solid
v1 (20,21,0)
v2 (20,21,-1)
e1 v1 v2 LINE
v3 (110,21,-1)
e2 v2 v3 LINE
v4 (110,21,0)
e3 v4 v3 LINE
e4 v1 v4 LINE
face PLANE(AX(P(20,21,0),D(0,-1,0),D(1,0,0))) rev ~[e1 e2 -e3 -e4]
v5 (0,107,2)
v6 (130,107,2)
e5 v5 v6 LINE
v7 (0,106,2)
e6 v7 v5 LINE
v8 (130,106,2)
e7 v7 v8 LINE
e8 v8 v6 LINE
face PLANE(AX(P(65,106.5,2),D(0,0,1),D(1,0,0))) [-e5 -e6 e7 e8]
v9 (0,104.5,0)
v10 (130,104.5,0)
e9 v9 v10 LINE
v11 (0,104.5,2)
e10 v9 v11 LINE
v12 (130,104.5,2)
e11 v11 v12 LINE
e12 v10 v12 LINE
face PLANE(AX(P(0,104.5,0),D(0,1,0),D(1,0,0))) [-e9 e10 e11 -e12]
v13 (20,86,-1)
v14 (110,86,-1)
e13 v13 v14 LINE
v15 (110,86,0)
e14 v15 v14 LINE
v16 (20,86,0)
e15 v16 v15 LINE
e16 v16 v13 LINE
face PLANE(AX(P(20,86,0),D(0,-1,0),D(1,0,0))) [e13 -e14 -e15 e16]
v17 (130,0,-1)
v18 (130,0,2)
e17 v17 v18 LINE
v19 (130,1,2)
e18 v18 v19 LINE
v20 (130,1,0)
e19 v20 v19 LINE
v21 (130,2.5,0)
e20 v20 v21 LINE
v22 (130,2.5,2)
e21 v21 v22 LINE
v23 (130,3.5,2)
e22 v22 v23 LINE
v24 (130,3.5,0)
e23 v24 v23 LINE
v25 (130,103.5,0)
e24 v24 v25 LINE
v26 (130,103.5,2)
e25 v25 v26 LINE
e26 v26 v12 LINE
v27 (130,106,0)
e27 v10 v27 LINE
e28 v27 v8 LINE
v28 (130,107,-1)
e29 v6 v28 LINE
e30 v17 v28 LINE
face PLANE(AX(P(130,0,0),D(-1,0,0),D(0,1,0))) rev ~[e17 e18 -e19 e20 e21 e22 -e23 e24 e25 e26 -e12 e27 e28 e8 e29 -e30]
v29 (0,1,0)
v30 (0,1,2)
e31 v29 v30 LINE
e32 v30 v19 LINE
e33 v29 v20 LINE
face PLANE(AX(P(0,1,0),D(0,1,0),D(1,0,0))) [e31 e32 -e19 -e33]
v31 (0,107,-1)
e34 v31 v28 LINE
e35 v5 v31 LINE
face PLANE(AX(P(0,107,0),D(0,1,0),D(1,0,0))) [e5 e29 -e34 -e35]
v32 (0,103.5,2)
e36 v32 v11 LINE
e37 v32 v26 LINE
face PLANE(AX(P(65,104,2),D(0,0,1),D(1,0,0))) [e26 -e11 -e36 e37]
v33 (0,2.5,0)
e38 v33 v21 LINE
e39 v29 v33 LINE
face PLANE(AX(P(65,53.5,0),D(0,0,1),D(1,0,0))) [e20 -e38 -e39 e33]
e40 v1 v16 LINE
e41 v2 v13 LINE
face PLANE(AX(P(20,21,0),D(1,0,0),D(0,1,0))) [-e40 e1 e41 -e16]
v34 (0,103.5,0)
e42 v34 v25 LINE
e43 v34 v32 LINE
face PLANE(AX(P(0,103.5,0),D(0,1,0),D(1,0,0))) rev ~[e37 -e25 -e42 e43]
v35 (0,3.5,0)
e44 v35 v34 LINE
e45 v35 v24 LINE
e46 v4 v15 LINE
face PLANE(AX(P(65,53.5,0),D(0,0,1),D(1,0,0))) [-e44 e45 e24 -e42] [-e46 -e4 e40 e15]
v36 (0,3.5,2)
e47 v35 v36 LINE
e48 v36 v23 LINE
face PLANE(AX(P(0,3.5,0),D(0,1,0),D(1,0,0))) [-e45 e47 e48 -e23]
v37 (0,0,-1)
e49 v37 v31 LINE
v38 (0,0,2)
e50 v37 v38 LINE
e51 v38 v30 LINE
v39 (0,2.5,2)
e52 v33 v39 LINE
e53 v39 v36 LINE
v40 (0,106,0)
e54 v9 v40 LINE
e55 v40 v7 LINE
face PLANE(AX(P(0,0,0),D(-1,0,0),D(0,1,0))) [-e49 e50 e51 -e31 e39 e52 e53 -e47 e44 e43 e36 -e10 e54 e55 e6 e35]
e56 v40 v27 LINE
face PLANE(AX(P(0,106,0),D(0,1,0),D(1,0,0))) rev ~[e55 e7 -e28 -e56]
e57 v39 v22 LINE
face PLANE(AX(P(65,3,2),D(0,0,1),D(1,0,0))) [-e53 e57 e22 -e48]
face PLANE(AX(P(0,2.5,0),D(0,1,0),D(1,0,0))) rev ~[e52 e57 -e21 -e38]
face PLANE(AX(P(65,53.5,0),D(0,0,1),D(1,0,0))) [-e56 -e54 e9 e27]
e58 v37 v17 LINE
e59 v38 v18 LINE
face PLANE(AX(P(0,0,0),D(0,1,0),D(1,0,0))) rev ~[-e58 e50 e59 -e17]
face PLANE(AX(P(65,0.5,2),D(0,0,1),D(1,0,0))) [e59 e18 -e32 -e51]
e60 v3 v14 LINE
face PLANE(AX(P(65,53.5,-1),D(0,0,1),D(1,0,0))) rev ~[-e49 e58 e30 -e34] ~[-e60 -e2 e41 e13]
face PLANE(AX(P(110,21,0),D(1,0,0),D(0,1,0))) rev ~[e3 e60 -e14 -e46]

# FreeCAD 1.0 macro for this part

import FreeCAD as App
import Part
import Sketcher
from FreeCAD import Vector
Q = App.Units.Quantity

doc = App.newDocument("Part")
body = doc.addObject("PartDesign::Body", "Body")

# Sketch on XY plane
sketch1 = body.newObject("Sketcher::SketchObject", "Sketch")
sketch1.AttachmentSupport = (doc.getObject("XY_Plane"), [""])
sketch1.MapMode = "FlatFace"
sketch1.addGeometry([
    Part.LineSegment(Vector(0, 107, 0), Vector(0, 0, 0)),
    Part.LineSegment(Vector(0, 0, 0), Vector(130, 0, 0)),
    Part.LineSegment(Vector(130, 0, 0), Vector(130, 107, 0)),
    Part.LineSegment(Vector(130, 107, 0), Vector(0, 107, 0)),
], False)
sketch1.addConstraint([
    Sketcher.Constraint("Coincident", 0, 2, 1, 1),
    Sketcher.Constraint("Coincident", 1, 2, 2, 1),
    Sketcher.Constraint("Coincident", 2, 2, 3, 1),
    Sketcher.Constraint("Coincident", 3, 2, 0, 1),
    Sketcher.Constraint("Vertical", 0),
    Sketcher.Constraint("Horizontal", 1),
    Sketcher.Constraint("Vertical", 2),
    Sketcher.Constraint("Horizontal", 3),
    Sketcher.Constraint("Coincident", 0, 2, -1, 1),
    Sketcher.Constraint("DistanceX", 1, 1, 1, 2, Q("130 mm")),
    Sketcher.Constraint("DistanceY", 0, 2, 0, 1, Q("107 mm")),
])
pad1 = body.newObject("PartDesign::Pad", "Pad")
pad1.Profile = sketch1
pad1.Length = 1
pad1.Reversed = True

# Sketch on XY plane
sketch2 = body.newObject("Sketcher::SketchObject", "Sketch001")
sketch2.AttachmentSupport = (doc.getObject("XY_Plane"), [""])
sketch2.MapMode = "FlatFace"
sketch2.addGeometry([
    Part.LineSegment(Vector(0, 107, 0), Vector(0, 106, 0)),
    Part.LineSegment(Vector(0, 106, 0), Vector(130, 106, 0)),
    Part.LineSegment(Vector(130, 106, 0), Vector(130, 107, 0)),
    Part.LineSegment(Vector(130, 107, 0), Vector(0, 107, 0)),
], False)
sketch2.addConstraint([
    Sketcher.Constraint("Coincident", 0, 2, 1, 1),
    Sketcher.Constraint("Coincident", 1, 2, 2, 1),
    Sketcher.Constraint("Coincident", 2, 2, 3, 1),
    Sketcher.Constraint("Coincident", 3, 2, 0, 1),
    Sketcher.Constraint("Vertical", 0),
    Sketcher.Constraint("Horizontal", 1),
    Sketcher.Constraint("Vertical", 2),
    Sketcher.Constraint("Horizontal", 3),
    Sketcher.Constraint("PointOnObject", 0, 2, -2),
    Sketcher.Constraint("DistanceX", 1, 1, 1, 2, Q("130 mm")),
    Sketcher.Constraint("DistanceY", 0, 2, 0, 1, Q("1 mm")),
    Sketcher.Constraint("DistanceY", -1, 1, 0, 2, Q("106 mm")),
])
pad2 = body.newObject("PartDesign::Pad", "Pad001")
pad2.Profile = sketch2
pad2.Length = 2

# Sketch on XY plane
sketch3 = body.newObject("Sketcher::SketchObject", "Sketch002")
sketch3.AttachmentSupport = (doc.getObject("XY_Plane"), [""])
sketch3.MapMode = "FlatFace"
sketch3.addGeometry([
    Part.LineSegment(Vector(0, 104.5, 0), Vector(0, 103.5, 0)),
    Part.LineSegment(Vector(0, 103.5, 0), Vector(130, 103.5, 0)),
    Part.LineSegment(Vector(130, 103.5, 0), Vector(130, 104.5, 0)),
    Part.LineSegment(Vector(130, 104.5, 0), Vector(0, 104.5, 0)),
], False)
sketch3.addConstraint([
    Sketcher.Constraint("Coincident", 0, 2, 1, 1),
    Sketcher.Constraint("Coincident", 1, 2, 2, 1),
    Sketcher.Constraint("Coincident", 2, 2, 3, 1),
    Sketcher.Constraint("Coincident", 3, 2, 0, 1),
    Sketcher.Constraint("Vertical", 0),
    Sketcher.Constraint("Horizontal", 1),
    Sketcher.Constraint("Vertical", 2),
    Sketcher.Constraint("Horizontal", 3),
    Sketcher.Constraint("PointOnObject", 0, 2, -2),
    Sketcher.Constraint("DistanceX", 1, 1, 1, 2, Q("130 mm")),
    Sketcher.Constraint("DistanceY", 0, 2, 0, 1, Q("1 mm")),
    Sketcher.Constraint("DistanceY", -1, 1, 0, 2, Q("103.5 mm")),
])
pad3 = body.newObject("PartDesign::Pad", "Pad002")
pad3.Profile = sketch3
pad3.Length = 2

# Sketch on XY plane
sketch4 = body.newObject("Sketcher::SketchObject", "Sketch003")
sketch4.AttachmentSupport = (doc.getObject("XY_Plane"), [""])
sketch4.MapMode = "FlatFace"
sketch4.addGeometry([
    Part.LineSegment(Vector(0, 3.5, 0), Vector(0, 2.5, 0)),
    Part.LineSegment(Vector(0, 2.5, 0), Vector(130, 2.5, 0)),
    Part.LineSegment(Vector(130, 2.5, 0), Vector(130, 3.5, 0)),
    Part.LineSegment(Vector(130, 3.5, 0), Vector(0, 3.5, 0)),
], False)
sketch4.addConstraint([
    Sketcher.Constraint("Coincident", 0, 2, 1, 1),
    Sketcher.Constraint("Coincident", 1, 2, 2, 1),
    Sketcher.Constraint("Coincident", 2, 2, 3, 1),
    Sketcher.Constraint("Coincident", 3, 2, 0, 1),
    Sketcher.Constraint("Vertical", 0),
    Sketcher.Constraint("Horizontal", 1),
    Sketcher.Constraint("Vertical", 2),
    Sketcher.Constraint("Horizontal", 3),
    Sketcher.Constraint("PointOnObject", 0, 2, -2),
    Sketcher.Constraint("DistanceX", 1, 1, 1, 2, Q("130 mm")),
    Sketcher.Constraint("DistanceY", 0, 2, 0, 1, Q("1 mm")),
    Sketcher.Constraint("DistanceY", -1, 1, 0, 2, Q("2.5 mm")),
])
pad4 = body.newObject("PartDesign::Pad", "Pad003")
pad4.Profile = sketch4
pad4.Length = 2

# Sketch on XY plane
sketch5 = body.newObject("Sketcher::SketchObject", "Sketch004")
sketch5.AttachmentSupport = (doc.getObject("XY_Plane"), [""])
sketch5.MapMode = "FlatFace"
sketch5.addGeometry([
    Part.LineSegment(Vector(0, 1, 0), Vector(0, 0, 0)),
    Part.LineSegment(Vector(0, 0, 0), Vector(130, 0, 0)),
    Part.LineSegment(Vector(130, 0, 0), Vector(130, 1, 0)),
    Part.LineSegment(Vector(130, 1, 0), Vector(0, 1, 0)),
], False)
sketch5.addConstraint([
    Sketcher.Constraint("Coincident", 0, 2, 1, 1),
    Sketcher.Constraint("Coincident", 1, 2, 2, 1),
    Sketcher.Constraint("Coincident", 2, 2, 3, 1),
    Sketcher.Constraint("Coincident", 3, 2, 0, 1),
    Sketcher.Constraint("Vertical", 0),
    Sketcher.Constraint("Horizontal", 1),
    Sketcher.Constraint("Vertical", 2),
    Sketcher.Constraint("Horizontal", 3),
    Sketcher.Constraint("Coincident", 0, 2, -1, 1),
    Sketcher.Constraint("DistanceX", 1, 1, 1, 2, Q("130 mm")),
    Sketcher.Constraint("DistanceY", 0, 2, 0, 1, Q("1 mm")),
])
pad5 = body.newObject("PartDesign::Pad", "Pad004")
pad5.Profile = sketch5
pad5.Length = 2

# Sketch on XY plane
sketch6 = body.newObject("Sketcher::SketchObject", "Sketch005")
sketch6.AttachmentSupport = (doc.getObject("XY_Plane"), [""])
sketch6.MapMode = "FlatFace"
sketch6.addGeometry([
    Part.LineSegment(Vector(20, 86, 0), Vector(20, 21, 0)),
    Part.LineSegment(Vector(20, 21, 0), Vector(110, 21, 0)),
    Part.LineSegment(Vector(110, 21, 0), Vector(110, 86, 0)),
    Part.LineSegment(Vector(110, 86, 0), Vector(20, 86, 0)),
], False)
sketch6.addConstraint([
    Sketcher.Constraint("Coincident", 0, 2, 1, 1),
    Sketcher.Constraint("Coincident", 1, 2, 2, 1),
    Sketcher.Constraint("Coincident", 2, 2, 3, 1),
    Sketcher.Constraint("Coincident", 3, 2, 0, 1),
    Sketcher.Constraint("Vertical", 0),
    Sketcher.Constraint("Horizontal", 1),
    Sketcher.Constraint("Vertical", 2),
    Sketcher.Constraint("Horizontal", 3),
    Sketcher.Constraint("DistanceX", 1, 1, 1, 2, Q("90 mm")),
    Sketcher.Constraint("DistanceY", 0, 2, 0, 1, Q("65 mm")),
    Sketcher.Constraint("DistanceX", -1, 1, 0, 2, Q("20 mm")),
    Sketcher.Constraint("DistanceY", -1, 1, 0, 2, Q("21 mm")),
])
pocket1 = body.newObject("PartDesign::Pocket", "Pocket")
pocket1.Profile = sketch6
pocket1.Type = "ThroughAll"
pocket1.Midplane = True

doc.recompute()
